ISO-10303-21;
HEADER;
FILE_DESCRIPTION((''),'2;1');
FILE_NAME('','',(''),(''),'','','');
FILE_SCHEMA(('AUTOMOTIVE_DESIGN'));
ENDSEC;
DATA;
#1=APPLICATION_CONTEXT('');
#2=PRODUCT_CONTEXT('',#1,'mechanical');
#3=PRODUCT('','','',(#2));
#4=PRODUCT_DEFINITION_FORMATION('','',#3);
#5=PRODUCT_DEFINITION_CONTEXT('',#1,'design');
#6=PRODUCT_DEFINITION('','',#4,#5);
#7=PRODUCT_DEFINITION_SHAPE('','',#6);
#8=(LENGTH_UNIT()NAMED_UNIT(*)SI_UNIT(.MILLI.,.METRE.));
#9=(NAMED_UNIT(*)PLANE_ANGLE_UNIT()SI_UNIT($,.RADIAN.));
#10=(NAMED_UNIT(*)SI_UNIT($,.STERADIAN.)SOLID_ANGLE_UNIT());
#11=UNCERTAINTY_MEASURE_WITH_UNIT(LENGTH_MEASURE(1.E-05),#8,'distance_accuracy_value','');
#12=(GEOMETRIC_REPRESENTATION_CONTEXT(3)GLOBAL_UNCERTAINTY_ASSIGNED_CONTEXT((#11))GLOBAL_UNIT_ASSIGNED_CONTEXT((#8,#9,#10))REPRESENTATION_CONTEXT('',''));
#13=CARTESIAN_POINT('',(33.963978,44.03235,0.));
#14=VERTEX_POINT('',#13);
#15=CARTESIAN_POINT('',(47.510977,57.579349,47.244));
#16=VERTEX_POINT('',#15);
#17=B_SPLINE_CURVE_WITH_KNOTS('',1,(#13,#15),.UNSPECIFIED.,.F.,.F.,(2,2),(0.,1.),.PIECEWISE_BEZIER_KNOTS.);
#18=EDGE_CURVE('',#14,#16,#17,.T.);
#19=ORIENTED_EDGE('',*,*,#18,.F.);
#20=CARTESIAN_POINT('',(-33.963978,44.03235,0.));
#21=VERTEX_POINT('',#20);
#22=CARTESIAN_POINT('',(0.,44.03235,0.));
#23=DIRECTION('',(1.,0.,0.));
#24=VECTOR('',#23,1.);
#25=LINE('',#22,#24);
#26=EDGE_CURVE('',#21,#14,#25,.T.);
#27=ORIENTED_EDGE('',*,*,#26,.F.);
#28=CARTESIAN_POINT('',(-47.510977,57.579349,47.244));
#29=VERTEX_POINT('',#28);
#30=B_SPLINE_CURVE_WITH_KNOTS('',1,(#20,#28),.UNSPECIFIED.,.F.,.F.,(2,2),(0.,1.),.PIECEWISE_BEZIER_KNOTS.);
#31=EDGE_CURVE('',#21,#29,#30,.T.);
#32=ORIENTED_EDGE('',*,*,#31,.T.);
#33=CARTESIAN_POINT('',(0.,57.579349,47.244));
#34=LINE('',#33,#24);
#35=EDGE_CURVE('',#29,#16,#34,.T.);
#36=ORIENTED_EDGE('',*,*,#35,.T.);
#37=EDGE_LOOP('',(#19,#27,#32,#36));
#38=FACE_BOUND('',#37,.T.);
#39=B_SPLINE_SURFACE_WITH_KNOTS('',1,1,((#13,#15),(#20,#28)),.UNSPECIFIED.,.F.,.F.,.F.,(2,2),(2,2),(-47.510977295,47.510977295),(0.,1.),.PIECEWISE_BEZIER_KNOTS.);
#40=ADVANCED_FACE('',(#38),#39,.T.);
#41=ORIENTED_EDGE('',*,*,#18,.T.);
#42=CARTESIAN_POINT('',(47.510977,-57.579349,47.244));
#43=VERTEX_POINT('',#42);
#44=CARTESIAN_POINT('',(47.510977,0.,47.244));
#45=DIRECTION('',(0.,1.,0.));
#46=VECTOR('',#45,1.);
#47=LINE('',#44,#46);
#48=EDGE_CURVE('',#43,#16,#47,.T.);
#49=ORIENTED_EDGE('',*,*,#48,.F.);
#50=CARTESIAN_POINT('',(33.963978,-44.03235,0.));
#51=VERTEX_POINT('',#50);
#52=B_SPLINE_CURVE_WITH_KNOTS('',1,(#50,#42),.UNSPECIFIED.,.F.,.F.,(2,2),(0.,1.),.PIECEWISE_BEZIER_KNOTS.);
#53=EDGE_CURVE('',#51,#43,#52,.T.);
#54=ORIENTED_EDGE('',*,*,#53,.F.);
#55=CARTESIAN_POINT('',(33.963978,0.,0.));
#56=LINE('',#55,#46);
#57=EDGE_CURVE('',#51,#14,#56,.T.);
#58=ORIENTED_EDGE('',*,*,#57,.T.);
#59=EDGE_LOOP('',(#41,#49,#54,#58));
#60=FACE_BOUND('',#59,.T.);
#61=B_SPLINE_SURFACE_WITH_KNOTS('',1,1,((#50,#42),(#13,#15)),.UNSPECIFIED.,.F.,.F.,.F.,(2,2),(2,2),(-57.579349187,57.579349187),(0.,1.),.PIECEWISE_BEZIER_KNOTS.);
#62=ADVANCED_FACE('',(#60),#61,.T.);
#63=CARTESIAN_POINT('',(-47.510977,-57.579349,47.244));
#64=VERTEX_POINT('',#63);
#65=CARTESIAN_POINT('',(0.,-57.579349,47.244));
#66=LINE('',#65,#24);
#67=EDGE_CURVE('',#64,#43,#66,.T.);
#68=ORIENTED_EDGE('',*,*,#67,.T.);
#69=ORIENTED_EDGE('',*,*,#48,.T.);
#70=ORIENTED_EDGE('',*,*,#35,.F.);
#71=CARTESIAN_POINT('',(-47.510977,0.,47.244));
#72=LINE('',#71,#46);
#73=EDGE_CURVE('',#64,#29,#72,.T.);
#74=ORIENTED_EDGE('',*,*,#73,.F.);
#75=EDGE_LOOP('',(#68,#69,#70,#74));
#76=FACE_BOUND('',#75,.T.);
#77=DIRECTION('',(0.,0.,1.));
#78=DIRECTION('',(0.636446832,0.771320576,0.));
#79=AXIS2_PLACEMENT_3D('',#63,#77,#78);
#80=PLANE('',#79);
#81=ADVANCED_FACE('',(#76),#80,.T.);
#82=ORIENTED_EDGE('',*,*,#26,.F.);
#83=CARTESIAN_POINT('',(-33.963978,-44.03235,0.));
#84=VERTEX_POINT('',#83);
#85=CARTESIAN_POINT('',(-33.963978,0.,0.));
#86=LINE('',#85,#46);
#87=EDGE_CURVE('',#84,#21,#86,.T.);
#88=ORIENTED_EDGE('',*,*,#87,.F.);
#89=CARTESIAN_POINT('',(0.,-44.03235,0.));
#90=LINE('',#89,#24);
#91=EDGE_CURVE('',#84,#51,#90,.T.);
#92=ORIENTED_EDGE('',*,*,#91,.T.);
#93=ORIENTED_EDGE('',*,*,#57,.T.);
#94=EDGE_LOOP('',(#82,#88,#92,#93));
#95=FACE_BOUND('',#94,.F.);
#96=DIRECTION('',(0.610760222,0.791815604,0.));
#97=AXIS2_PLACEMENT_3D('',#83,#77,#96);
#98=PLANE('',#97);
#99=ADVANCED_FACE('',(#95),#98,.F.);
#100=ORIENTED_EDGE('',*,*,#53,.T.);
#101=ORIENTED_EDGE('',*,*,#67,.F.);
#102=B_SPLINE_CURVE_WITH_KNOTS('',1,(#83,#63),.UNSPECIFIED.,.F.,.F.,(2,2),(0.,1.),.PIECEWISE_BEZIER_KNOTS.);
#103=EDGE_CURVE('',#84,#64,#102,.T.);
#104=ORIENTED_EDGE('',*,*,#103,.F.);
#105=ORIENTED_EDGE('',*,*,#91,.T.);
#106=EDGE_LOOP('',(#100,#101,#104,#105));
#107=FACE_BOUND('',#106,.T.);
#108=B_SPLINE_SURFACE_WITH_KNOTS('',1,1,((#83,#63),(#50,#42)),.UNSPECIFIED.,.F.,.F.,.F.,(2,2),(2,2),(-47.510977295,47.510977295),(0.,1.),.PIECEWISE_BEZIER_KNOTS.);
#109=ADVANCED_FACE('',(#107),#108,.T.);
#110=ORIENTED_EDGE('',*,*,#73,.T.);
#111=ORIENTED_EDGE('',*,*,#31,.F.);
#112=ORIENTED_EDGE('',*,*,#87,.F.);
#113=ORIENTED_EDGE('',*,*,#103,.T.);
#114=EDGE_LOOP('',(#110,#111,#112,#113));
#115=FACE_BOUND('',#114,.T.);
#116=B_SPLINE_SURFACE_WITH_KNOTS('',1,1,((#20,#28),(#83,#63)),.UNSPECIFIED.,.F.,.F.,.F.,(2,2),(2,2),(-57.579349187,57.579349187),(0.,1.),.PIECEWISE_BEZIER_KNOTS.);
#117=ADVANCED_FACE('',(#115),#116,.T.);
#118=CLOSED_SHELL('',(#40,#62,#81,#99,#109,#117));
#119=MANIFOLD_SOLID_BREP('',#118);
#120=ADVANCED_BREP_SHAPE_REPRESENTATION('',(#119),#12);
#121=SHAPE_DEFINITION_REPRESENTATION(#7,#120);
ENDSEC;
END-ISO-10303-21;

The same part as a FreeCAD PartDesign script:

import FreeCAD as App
import Part
import Sketcher
Q = App.Units.Quantity

doc = App.newDocument("Part")
body = doc.addObject("PartDesign::Body", "Body")

sketch1 = body.newObject("Sketcher::SketchObject", "Sketch")
sketch1.AttachmentSupport = (doc.getObject("XY_Plane"), [""])
sketch1.MapMode = "FlatFace"
sketch1.addGeometry([
    Part.LineSegment(App.Vector(-34, 44, 0), App.Vector(-34, -44, 0)),
    Part.LineSegment(App.Vector(-34, -44, 0), App.Vector(34, -44, 0)),
    Part.LineSegment(App.Vector(34, -44, 0), App.Vector(34, 44, 0)),
    Part.LineSegment(App.Vector(34, 44, 0), App.Vector(-34, 44, 0)),
], False)
sketch1.addConstraint([
    Sketcher.Constraint("Coincident", 0, 2, 1, 1),
    Sketcher.Constraint("Coincident", 1, 2, 2, 1),
    Sketcher.Constraint("Coincident", 2, 2, 3, 1),
    Sketcher.Constraint("Coincident", 3, 2, 0, 1),
    Sketcher.Constraint("Vertical", 0),
    Sketcher.Constraint("Horizontal", 1),
    Sketcher.Constraint("Vertical", 2),
    Sketcher.Constraint("Horizontal", 3),
    Sketcher.Constraint("Symmetric", 0, 2, 2, 2, -1, 1),
    Sketcher.Constraint("DistanceY", 0, 2, 0, 1, Q("88.0647 mm")),
    Sketcher.Constraint("DistanceX", 1, 1, 1, 2, Q("67.927957 mm")),
])
pad1 = body.newObject("PartDesign::Pad", "Pad")
pad1.Profile = sketch1
pad1.Length = Q("1.86 in")
pad1.TaperAngle = 16

sketch2 = body.newObject("Sketcher::SketchObject", "Sketch001")
sketch2.AttachmentSupport = (doc.getObject("XY_Plane"), [""])
sketch2.MapMode = "FlatFace"
sketch2.addGeometry([
    Part.LineSegment(App.Vector(-34, 44, 0), App.Vector(-34, -44, 0)),
    Part.LineSegment(App.Vector(-34, -44, 0), App.Vector(34, -44, 0)),
    Part.LineSegment(App.Vector(34, -44, 0), App.Vector(34, 44, 0)),
    Part.LineSegment(App.Vector(34, 44, 0), App.Vector(-34, 44, 0)),
], False)
sketch2.addConstraint([
    Sketcher.Constraint("Coincident", 0, 2, 1, 1),
    Sketcher.Constraint("Coincident", 1, 2, 2, 1),
    Sketcher.Constraint("Coincident", 2, 2, 3, 1),
    Sketcher.Constraint("Coincident", 3, 2, 0, 1),
    Sketcher.Constraint("Vertical", 0),
    Sketcher.Constraint("Horizontal", 1),
    Sketcher.Constraint("Vertical", 2),
    Sketcher.Constraint("Horizontal", 3),
    Sketcher.Constraint("Symmetric", 0, 2, 2, 2, -1, 1),
    Sketcher.Constraint("DistanceY", 0, 2, 0, 1, Q("88.0647 mm")),
    Sketcher.Constraint("DistanceX", 1, 1, 1, 2, Q("67.927957 mm")),
])
pad2 = body.newObject("PartDesign::Pad", "Pad001")
pad2.Profile = sketch2
pad2.Length = Q("1 in")

doc.recompute()
